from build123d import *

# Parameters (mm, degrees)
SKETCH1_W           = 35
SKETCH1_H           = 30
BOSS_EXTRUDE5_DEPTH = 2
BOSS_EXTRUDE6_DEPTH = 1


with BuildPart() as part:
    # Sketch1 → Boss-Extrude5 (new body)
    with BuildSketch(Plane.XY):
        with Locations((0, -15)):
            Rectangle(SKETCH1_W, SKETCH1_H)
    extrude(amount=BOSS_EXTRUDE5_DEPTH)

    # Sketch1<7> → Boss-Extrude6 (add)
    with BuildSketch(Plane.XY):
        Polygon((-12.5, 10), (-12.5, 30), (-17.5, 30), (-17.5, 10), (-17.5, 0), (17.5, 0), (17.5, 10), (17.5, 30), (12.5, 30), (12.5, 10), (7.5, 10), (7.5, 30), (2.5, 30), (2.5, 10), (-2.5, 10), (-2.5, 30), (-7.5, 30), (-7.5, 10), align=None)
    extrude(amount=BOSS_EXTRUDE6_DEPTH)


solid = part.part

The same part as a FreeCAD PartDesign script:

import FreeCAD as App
import Part
import Sketcher


def add_polygon(sketch, points):
    """Adds a closed chain of lines whose ends are joined by coincident constraints."""
    first, n = sketch.GeometryCount, len(points)
    for a, b in zip(points, points[1:] + points[:1]):
        sketch.addGeometry(Part.LineSegment(App.Vector(*a, 0), App.Vector(*b, 0)), False)
    for i in range(n):
        sketch.addConstraint(Sketcher.Constraint("Coincident", first + i, 2, first + (i + 1) % n, 1))

doc = App.newDocument("Part")
params = doc.addObject("Spreadsheet::Sheet", "Params")
for row, (alias, value) in enumerate([
    ("sketch1_width", "35 mm"),
    ("sketch1_height", "30 mm"),
    ("pad1_length", "2 mm"),
    ("sketch2_width", "5 mm"),
    ("sketch2_height", "20 mm"),
    ("sketch2_height2", "30 mm"),
    ("pad2_length", "1 mm"),
], start=1):
    params.set(f"A{row}", alias)
    params.set(f"B{row}", "=" + value)
    params.setAlias(f"B{row}", alias)

body = doc.addObject("PartDesign::Body", "Body")

sketch1 = body.newObject("Sketcher::SketchObject", "Sketch")
sketch1.AttachmentSupport = (doc.getObject("XY_Plane"), [""])
sketch1.MapMode = "FlatFace"
add_polygon(sketch1, [(-18, 0), (-18, -30), (18, -30), (18, 0)])
sketch1.addConstraint(Sketcher.Constraint("Vertical", 0))
sketch1.addConstraint(Sketcher.Constraint("Horizontal", 1))
sketch1.addConstraint(Sketcher.Constraint("Vertical", 2))
sketch1.addConstraint(Sketcher.Constraint("Horizontal", 3))
sketch1.addConstraint(Sketcher.Constraint("Symmetric", 2, 2, 3, 2, -1, 1))
sketch1.addConstraint(Sketcher.Constraint("DistanceX", 1, 1, 1, 2, 35.0))
sketch1.addConstraint(Sketcher.Constraint("DistanceY", 0, 2, 0, 1, 30.0))
sketch1.setExpression("Constraints[9]", "Params.sketch1_width")
sketch1.setExpression("Constraints[10]", "Params.sketch1_height")
pad1 = body.newObject("PartDesign::Pad", "Pad")
pad1.Profile = sketch1
pad1.setExpression("Length", "Params.pad1_length")

sketch2 = body.newObject("Sketcher::SketchObject", "Sketch001")
sketch2.AttachmentSupport = (doc.getObject("XY_Plane"), [""])
sketch2.MapMode = "FlatFace"
add_polygon(sketch2, [(-12, 10), (-12, 30), (-18, 30), (-18, 0), (18, 0), (18, 30), (12, 30), (12, 10), (8, 10), (8, 30), (2, 30), (2, 10), (-2, 10), (-2, 30), (-8, 30), (-8, 10)])
sketch2.addConstraint(Sketcher.Constraint("Vertical", 0))
sketch2.addConstraint(Sketcher.Constraint("Horizontal", 1))
sketch2.addConstraint(Sketcher.Constraint("Vertical", 2))
sketch2.addConstraint(Sketcher.Constraint("Horizontal", 3))
sketch2.addConstraint(Sketcher.Constraint("Vertical", 4))
sketch2.addConstraint(Sketcher.Constraint("Horizontal", 5))
sketch2.addConstraint(Sketcher.Constraint("Vertical", 6))
sketch2.addConstraint(Sketcher.Constraint("Horizontal", 7))
sketch2.addConstraint(Sketcher.Constraint("Vertical", 8))
sketch2.addConstraint(Sketcher.Constraint("Horizontal", 9))
sketch2.addConstraint(Sketcher.Constraint("Vertical", 10))
sketch2.addConstraint(Sketcher.Constraint("Horizontal", 11))
sketch2.addConstraint(Sketcher.Constraint("Vertical", 12))
sketch2.addConstraint(Sketcher.Constraint("Horizontal", 13))
sketch2.addConstraint(Sketcher.Constraint("Vertical", 14))
sketch2.addConstraint(Sketcher.Constraint("Horizontal", 15))
sketch2.addConstraint(Sketcher.Constraint("Symmetric", 2, 2, 3, 2, -1, 1))
sketch2.addConstraint(Sketcher.Constraint("Symmetric", 0, 2, 5, 2, -2))
sketch2.addConstraint(Sketcher.Constraint("Symmetric", 9, 2, 12, 2, -2))
sketch2.addConstraint(Sketcher.Constraint("Symmetric", 7, 2, 14, 2, -2))
sketch2.addConstraint(Sketcher.Constraint("Horizontal", 5, 2, 8, 2))
sketch2.addConstraint(Sketcher.Constraint("Horizontal", 7, 2, 10, 2))
sketch2.addConstraint(Sketcher.Constraint("Equal", 5, 7))
sketch2.addConstraint(Sketcher.Constraint("Equal", 7, 9))
sketch2.addConstraint(Sketcher.Constraint("Equal", 9, 11))
sketch2.addConstraint(Sketcher.Constraint("DistanceX", 1, 2, 1, 1, 5.0))
sketch2.addConstraint(Sketcher.Constraint("DistanceY", 0, 1, 0, 2, 20.0))
sketch2.addConstraint(Sketcher.Constraint("DistanceY", 2, 2, 2, 1, 30.0))
sketch2.setExpression("Constraints[41]", "Params.sketch2_width")
sketch2.setExpression("Constraints[42]", "Params.sketch2_height")
sketch2.setExpression("Constraints[43]", "Params.sketch2_height2")
pad2 = body.newObject("PartDesign::Pad", "Pad001")
pad2.Profile = sketch2
pad2.setExpression("Length", "Params.pad2_length")

doc.recompute()
